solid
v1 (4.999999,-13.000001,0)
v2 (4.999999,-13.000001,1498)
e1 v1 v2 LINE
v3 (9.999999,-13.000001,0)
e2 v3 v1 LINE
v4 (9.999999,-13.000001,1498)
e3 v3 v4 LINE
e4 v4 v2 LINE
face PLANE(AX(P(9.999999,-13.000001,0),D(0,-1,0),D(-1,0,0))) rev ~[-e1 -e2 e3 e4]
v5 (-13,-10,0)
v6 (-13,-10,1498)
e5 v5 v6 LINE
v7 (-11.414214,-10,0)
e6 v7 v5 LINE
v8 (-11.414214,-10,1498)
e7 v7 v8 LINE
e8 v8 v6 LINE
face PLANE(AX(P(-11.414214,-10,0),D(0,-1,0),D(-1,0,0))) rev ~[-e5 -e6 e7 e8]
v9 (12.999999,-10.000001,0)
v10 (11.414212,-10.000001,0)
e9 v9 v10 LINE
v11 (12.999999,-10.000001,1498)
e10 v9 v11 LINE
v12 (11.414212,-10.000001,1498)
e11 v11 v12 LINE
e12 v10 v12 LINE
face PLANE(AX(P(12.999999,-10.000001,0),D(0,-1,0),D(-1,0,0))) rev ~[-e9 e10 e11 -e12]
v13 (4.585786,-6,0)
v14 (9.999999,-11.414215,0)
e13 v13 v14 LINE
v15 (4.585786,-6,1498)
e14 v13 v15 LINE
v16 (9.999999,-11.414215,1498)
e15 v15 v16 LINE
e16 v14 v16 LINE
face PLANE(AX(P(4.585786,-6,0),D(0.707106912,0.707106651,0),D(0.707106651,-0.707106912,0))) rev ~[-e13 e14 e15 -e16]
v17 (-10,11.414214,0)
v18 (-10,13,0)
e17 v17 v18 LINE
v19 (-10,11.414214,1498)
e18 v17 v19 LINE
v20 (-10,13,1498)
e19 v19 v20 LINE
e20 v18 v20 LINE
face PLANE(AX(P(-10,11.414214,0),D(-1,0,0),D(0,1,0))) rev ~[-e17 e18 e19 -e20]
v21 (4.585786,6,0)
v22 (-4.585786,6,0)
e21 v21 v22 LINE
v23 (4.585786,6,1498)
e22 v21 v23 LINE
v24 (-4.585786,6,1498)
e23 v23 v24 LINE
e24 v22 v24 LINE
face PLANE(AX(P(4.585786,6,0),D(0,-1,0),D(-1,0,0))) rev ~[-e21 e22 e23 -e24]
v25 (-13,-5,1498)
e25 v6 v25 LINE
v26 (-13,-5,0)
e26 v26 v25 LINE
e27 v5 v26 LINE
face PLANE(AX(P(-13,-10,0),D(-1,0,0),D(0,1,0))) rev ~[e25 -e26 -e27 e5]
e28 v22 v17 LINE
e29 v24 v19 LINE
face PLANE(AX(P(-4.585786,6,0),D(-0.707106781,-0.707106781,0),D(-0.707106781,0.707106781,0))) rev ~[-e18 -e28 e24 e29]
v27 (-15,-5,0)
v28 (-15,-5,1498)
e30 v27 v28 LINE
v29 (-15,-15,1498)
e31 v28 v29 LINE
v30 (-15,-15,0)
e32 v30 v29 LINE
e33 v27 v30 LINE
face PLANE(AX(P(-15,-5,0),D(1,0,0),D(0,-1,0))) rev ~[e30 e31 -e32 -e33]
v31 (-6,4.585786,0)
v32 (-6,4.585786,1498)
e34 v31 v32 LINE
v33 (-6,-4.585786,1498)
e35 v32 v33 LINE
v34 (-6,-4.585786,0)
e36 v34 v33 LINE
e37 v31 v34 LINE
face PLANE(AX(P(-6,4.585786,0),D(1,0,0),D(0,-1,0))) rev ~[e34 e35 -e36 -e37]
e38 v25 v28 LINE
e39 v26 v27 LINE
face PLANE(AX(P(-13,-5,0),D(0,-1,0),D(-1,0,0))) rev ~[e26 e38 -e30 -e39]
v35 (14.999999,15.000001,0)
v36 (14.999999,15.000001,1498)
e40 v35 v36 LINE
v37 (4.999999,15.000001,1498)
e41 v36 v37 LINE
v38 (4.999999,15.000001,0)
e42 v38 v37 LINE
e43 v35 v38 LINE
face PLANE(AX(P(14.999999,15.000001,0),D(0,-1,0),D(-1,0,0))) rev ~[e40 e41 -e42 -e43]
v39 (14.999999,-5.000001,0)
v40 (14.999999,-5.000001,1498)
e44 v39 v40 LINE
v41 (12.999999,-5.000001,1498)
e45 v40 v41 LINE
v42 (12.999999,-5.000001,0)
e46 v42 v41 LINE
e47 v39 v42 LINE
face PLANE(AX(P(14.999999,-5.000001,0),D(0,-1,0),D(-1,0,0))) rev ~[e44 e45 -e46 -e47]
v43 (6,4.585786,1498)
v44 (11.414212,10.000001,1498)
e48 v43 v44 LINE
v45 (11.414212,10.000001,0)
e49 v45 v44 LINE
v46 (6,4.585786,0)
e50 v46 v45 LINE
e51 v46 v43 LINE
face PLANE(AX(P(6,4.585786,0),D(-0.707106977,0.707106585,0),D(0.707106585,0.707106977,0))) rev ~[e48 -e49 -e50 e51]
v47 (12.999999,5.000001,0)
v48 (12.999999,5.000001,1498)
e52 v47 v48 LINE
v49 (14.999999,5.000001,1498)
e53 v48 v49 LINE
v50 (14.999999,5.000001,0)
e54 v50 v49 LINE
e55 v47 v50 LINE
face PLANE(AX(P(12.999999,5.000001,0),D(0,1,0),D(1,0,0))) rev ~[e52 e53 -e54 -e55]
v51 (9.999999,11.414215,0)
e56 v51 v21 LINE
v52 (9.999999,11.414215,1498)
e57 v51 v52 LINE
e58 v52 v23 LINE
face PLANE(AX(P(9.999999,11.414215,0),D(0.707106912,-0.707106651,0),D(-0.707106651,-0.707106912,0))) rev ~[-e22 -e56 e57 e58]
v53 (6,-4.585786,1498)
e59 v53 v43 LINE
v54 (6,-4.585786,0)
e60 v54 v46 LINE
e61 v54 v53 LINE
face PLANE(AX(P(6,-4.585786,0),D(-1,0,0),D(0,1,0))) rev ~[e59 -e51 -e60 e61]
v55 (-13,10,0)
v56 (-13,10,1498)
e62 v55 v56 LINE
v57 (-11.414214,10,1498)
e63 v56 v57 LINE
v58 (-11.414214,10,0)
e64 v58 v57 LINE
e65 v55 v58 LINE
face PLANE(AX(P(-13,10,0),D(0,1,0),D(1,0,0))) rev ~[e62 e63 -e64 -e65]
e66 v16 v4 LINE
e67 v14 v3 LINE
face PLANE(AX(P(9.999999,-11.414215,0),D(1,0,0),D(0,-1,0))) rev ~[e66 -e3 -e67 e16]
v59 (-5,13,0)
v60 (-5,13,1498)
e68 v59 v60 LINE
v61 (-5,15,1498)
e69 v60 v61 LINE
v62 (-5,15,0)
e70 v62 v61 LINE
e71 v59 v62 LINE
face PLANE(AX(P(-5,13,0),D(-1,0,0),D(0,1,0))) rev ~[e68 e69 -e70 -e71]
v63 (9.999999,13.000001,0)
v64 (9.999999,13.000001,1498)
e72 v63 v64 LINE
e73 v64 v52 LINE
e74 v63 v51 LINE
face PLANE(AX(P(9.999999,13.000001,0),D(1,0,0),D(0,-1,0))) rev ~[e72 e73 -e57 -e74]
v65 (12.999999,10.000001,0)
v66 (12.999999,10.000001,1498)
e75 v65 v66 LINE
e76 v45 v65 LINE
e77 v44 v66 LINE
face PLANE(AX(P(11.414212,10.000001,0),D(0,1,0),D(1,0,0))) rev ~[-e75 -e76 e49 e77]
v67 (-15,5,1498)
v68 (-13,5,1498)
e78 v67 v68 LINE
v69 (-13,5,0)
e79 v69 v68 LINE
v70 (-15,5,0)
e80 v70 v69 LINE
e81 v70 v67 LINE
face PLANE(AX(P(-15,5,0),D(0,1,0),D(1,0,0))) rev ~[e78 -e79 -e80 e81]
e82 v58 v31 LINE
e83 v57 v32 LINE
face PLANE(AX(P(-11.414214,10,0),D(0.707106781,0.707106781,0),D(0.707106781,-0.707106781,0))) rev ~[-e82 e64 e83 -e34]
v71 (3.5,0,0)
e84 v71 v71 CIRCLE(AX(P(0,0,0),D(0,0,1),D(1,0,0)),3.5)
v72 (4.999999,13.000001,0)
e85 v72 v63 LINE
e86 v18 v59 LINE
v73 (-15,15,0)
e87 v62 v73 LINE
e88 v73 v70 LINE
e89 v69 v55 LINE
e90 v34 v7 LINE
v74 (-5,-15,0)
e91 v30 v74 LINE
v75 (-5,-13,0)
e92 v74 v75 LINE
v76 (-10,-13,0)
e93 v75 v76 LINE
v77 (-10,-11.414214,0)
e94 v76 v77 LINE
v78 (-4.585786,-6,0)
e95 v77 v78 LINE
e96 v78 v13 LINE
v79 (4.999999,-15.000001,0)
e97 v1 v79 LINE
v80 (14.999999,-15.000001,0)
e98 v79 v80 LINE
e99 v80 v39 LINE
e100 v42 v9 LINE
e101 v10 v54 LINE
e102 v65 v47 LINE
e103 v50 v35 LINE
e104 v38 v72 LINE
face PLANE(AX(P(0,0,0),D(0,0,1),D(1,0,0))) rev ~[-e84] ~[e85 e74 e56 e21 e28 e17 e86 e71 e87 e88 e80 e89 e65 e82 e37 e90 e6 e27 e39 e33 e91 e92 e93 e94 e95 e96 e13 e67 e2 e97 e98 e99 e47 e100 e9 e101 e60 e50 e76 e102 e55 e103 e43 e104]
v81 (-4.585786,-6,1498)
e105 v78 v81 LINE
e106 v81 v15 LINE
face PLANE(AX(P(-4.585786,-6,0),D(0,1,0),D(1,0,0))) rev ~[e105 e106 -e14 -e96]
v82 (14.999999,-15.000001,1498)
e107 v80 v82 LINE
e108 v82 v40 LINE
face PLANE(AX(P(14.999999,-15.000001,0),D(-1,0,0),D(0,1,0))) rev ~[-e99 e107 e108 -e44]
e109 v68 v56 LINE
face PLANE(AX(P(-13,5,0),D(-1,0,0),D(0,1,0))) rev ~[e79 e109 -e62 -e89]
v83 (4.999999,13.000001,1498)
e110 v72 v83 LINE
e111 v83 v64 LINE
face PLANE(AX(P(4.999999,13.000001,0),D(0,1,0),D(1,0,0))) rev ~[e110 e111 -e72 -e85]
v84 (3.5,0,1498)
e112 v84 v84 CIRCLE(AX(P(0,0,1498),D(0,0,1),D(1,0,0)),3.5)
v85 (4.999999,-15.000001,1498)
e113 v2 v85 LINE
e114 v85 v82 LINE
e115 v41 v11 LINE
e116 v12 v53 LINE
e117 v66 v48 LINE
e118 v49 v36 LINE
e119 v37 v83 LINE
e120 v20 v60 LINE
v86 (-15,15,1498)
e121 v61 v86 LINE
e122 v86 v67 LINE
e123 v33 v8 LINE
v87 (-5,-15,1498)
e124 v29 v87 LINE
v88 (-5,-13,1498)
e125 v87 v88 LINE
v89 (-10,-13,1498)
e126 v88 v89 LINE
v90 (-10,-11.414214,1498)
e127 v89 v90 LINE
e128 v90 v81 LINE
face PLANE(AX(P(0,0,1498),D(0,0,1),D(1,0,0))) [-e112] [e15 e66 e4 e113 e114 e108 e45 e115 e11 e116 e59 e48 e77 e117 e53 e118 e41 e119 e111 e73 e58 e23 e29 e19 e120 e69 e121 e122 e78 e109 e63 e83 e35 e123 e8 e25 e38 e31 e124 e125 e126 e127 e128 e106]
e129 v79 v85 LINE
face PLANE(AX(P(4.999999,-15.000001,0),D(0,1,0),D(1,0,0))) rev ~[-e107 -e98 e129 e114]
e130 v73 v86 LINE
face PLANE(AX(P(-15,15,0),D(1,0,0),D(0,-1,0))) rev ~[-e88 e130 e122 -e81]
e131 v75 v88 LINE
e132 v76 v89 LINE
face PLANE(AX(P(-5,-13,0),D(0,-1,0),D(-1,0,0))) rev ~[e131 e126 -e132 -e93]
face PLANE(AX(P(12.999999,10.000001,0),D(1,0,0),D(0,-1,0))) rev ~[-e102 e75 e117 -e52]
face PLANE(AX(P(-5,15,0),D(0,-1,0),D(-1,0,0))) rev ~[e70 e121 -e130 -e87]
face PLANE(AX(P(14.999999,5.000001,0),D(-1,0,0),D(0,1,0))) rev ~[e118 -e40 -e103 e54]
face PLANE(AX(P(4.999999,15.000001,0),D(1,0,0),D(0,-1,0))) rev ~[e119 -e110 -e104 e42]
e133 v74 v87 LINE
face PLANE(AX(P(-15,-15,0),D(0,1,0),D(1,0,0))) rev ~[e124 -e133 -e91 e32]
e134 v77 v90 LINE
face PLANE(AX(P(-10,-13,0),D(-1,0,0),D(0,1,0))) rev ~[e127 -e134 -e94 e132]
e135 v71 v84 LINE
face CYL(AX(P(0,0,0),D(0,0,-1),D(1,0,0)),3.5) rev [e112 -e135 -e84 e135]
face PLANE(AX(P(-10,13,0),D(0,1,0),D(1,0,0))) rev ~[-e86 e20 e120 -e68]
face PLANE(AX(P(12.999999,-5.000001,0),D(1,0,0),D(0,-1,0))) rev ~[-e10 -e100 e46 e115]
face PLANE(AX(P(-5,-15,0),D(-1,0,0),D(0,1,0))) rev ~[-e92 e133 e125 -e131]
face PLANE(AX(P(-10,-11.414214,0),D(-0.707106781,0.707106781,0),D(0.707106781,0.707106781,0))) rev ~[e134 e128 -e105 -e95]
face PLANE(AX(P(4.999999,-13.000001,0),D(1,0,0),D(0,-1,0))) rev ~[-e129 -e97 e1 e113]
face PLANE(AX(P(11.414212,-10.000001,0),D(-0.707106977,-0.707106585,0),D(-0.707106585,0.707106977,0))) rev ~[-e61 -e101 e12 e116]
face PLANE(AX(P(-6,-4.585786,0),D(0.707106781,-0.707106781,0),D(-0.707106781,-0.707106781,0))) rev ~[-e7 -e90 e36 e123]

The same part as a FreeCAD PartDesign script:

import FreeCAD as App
import Part
import Sketcher
from FreeCAD import Vector


def add_polygon(sketch, points):
    """Adds a closed chain of lines whose ends are joined by coincident constraints."""
    first, n = sketch.GeometryCount, len(points)
    for a, b in zip(points, points[1:] + points[:1]):
        sketch.addGeometry(Part.LineSegment(App.Vector(*a, 0), App.Vector(*b, 0)), False)
    for i in range(n):
        sketch.addConstraint(Sketcher.Constraint("Coincident", first + i, 2, first + (i + 1) % n, 1))

doc = App.newDocument("Part")
body = doc.addObject("PartDesign::Body", "Body")

# Sketch on XY plane
sketch1 = body.newObject("Sketcher::SketchObject", "Sketch")
sketch1.AttachmentSupport = (doc.getObject("XY_Plane"), [""])
sketch1.MapMode = "FlatFace"
add_polygon(sketch1, [(4.585786, 6), (-4.585786, 6), (-10, 11.414214), (-10, 13), (-5, 13), (-5, 15), (-15, 15), (-15, 5), (-13, 5), (-13, 10), (-11.414214, 10), (-6, 4.585786), (-6, -4.585786), (-11.414214, -10), (-13, -10), (-13, -5), (-15, -5), (-15, -15), (-5, -15), (-5, -13), (-10, -13), (-10, -11.414214), (-4.585786, -6), (4.585786, -6), (9.999999, -11.414215), (9.999999, -13.000001), (4.999999, -13.000001), (4.999999, -15.000001), (14.999999, -15.000001), (14.999999, -5.000001), (12.999999, -5.000001), (12.999999, -10.000001), (11.414212, -10.000001), (6, -4.585786), (6, 4.585786), (11.414212, 10.000001), (12.999999, 10.000001), (12.999999, 5.000001), (14.999999, 5.000001), (14.999999, 15.000001), (4.999999, 15.000001), (4.999999, 13.000001), (9.999999, 13.000001), (9.999999, 11.414215)])  # lines 0-43
sketch1.addGeometry(Part.Circle(Vector(0, 0, 0), Vector(0, 0, 1), 3.5), False)  # 44
sketch1.addConstraint([
    Sketcher.Constraint("Horizontal", 0),
    Sketcher.Constraint("Vertical", 2),
    Sketcher.Constraint("Horizontal", 3),
    Sketcher.Constraint("Vertical", 4),
    Sketcher.Constraint("Horizontal", 5),
    Sketcher.Constraint("Vertical", 6),
    Sketcher.Constraint("Horizontal", 7),
    Sketcher.Constraint("Vertical", 8),
    Sketcher.Constraint("Horizontal", 9),
    Sketcher.Constraint("Vertical", 11),
    Sketcher.Constraint("Horizontal", 13),
    Sketcher.Constraint("Vertical", 14),
    Sketcher.Constraint("Horizontal", 15),
    Sketcher.Constraint("Vertical", 16),
    Sketcher.Constraint("Horizontal", 17),
    Sketcher.Constraint("Vertical", 18),
    Sketcher.Constraint("Horizontal", 19),
    Sketcher.Constraint("Vertical", 20),
    Sketcher.Constraint("Horizontal", 22),
    Sketcher.Constraint("Vertical", 24),
    Sketcher.Constraint("Horizontal", 25),
    Sketcher.Constraint("Vertical", 26),
    Sketcher.Constraint("Horizontal", 27),
    Sketcher.Constraint("Vertical", 28),
    Sketcher.Constraint("Horizontal", 29),
    Sketcher.Constraint("Vertical", 30),
    Sketcher.Constraint("Horizontal", 31),
    Sketcher.Constraint("Vertical", 33),
    Sketcher.Constraint("Horizontal", 35),
    Sketcher.Constraint("Vertical", 36),
    Sketcher.Constraint("Horizontal", 37),
    Sketcher.Constraint("Vertical", 38),
    Sketcher.Constraint("Horizontal", 39),
    Sketcher.Constraint("Vertical", 40),
    Sketcher.Constraint("Horizontal", 41),
    Sketcher.Constraint("Vertical", 42),
    Sketcher.Constraint("Coincident", 44, 3, -1, 1),
    Sketcher.Constraint("Symmetric", 0, 2, 22, 2, -1, 1),
    Sketcher.Constraint("Symmetric", 1, 2, 23, 2, -1, 1),
    Sketcher.Constraint("Symmetric", 3, 2, 25, 2, -1, 1),
    Sketcher.Constraint("Symmetric", 5, 2, 27, 2, -1, 1),
    Sketcher.Constraint("Symmetric", 7, 2, 29, 2, -1, 1),
    Sketcher.Constraint("Symmetric", 9, 2, 31, 2, -1, 1),
    Sketcher.Constraint("Symmetric", 10, 2, 32, 2, -1, 1),
    Sketcher.Constraint("Symmetric", 12, 2, 34, 2, -1, 1),
    Sketcher.Constraint("Symmetric", 14, 2, 36, 2, -1, 1),
    Sketcher.Constraint("Symmetric", 16, 2, 38, 2, -1, 1),
    Sketcher.Constraint("Symmetric", 18, 2, 40, 2, -1, 1),
    Sketcher.Constraint("Symmetric", 20, 2, 42, 2, -1, 1),
    Sketcher.Constraint("Symmetric", 20, 2, 23, 2, -2),
    Sketcher.Constraint("Symmetric", 18, 2, 25, 2, -2),
    Sketcher.Constraint("Symmetric", 16, 2, 27, 2, -2),
    Sketcher.Constraint("Symmetric", 14, 2, 29, 2, -2),
    Sketcher.Constraint("Symmetric", 12, 2, 31, 2, -2),
    Sketcher.Constraint("Parallel", 1, 10),
    Sketcher.Constraint("Perpendicular", 10, 12),
    Sketcher.Constraint("Parallel", 12, 21),
    Sketcher.Constraint("Perpendicular", 32, 34),
    Sketcher.Constraint("Parallel", 34, 43),
    Sketcher.Constraint("Horizontal", 11, 2, 32, 2),
    Sketcher.Constraint("Equal", 35, 2),
    Sketcher.Constraint("Equal", 37, 4),
    Sketcher.Constraint("Equal", 39, 6),
    Sketcher.Constraint("Equal", 41, 8),
    Sketcher.Constraint("Equal", 22, 11),
    Sketcher.Constraint("Equal", 1, 10),
    Sketcher.Constraint("Diameter", 44, 7.0),
    Sketcher.Constraint("DistanceX", 3, 1, 3, 2, 5.0),
    Sketcher.Constraint("DistanceX", 5, 2, 5, 1, 10.0),
    Sketcher.Constraint("DistanceX", 7, 1, 7, 2, 2.0),
    Sketcher.Constraint("DistanceY", -1, 1, 0, 2, 6.0),
    Sketcher.Constraint("DistanceX", 1, 2, -1, 1, 10.0),
    Sketcher.Constraint("DistanceX", 0, 2, 0, 1, 9.171572),
])
pad1 = body.newObject("PartDesign::Pad", "Pad")
pad1.Profile = sketch1
pad1.Length = 1498

doc.recompute()
